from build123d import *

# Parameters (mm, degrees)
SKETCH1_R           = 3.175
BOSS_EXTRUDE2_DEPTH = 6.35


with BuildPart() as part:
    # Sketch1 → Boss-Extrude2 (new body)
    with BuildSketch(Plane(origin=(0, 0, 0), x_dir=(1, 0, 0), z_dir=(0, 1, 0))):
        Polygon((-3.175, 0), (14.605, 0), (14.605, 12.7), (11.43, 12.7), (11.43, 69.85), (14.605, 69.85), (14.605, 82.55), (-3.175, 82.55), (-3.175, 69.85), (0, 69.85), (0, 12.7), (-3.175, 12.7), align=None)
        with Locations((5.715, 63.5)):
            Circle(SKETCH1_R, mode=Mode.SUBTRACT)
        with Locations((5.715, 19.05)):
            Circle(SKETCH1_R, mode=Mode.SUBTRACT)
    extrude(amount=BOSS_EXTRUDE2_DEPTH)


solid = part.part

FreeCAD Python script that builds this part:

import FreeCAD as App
import Part
import Sketcher
from FreeCAD import Vector
Q = App.Units.Quantity


def add_polygon(sketch, points):
    """Adds a closed chain of lines whose ends are joined by coincident constraints."""
    first, n = sketch.GeometryCount, len(points)
    for a, b in zip(points, points[1:] + points[:1]):
        sketch.addGeometry(Part.LineSegment(App.Vector(*a, 0), App.Vector(*b, 0)), False)
    for i in range(n):
        sketch.addConstraint(Sketcher.Constraint("Coincident", first + i, 2, first + (i + 1) % n, 1))

doc = App.newDocument("Part")
body = doc.addObject("PartDesign::Body", "Body")

# Sketch on XZ plane
sketch1 = body.newObject("Sketcher::SketchObject", "Sketch")
sketch1.AttachmentSupport = (doc.getObject("XZ_Plane"), [""])
sketch1.MapMode = "FlatFace"
add_polygon(sketch1, [(-3.2, 0), (14.6, 0), (14.6, -12.7), (11.4, -12.7), (11.4, -69.8), (14.6, -69.8), (14.6, -82.5), (-3.2, -82.5), (-3.2, -69.8), (0, -69.8), (0, -12.7), (-3.2, -12.7)])  # lines 0-11
sketch1.addGeometry(Part.Circle(Vector(5.7, -19.1, 0), Vector(0, 0, 1), 3.2), False)  # 12
sketch1.addGeometry(Part.Circle(Vector(5.7, -63.5, 0), Vector(0, 0, 1), 3.2), False)  # 13
sketch1.addConstraint(Sketcher.Constraint("Horizontal", 0))
sketch1.addConstraint(Sketcher.Constraint("Vertical", 1))
sketch1.addConstraint(Sketcher.Constraint("Horizontal", 2))
sketch1.addConstraint(Sketcher.Constraint("Vertical", 3))
sketch1.addConstraint(Sketcher.Constraint("Horizontal", 4))
sketch1.addConstraint(Sketcher.Constraint("Vertical", 5))
sketch1.addConstraint(Sketcher.Constraint("Horizontal", 6))
sketch1.addConstraint(Sketcher.Constraint("Vertical", 7))
sketch1.addConstraint(Sketcher.Constraint("Horizontal", 8))
sketch1.addConstraint(Sketcher.Constraint("Vertical", 9))
sketch1.addConstraint(Sketcher.Constraint("Horizontal", 10))
sketch1.addConstraint(Sketcher.Constraint("Vertical", 11))
sketch1.addConstraint(Sketcher.Constraint("Equal", 12, 13))
sketch1.addConstraint(Sketcher.Constraint("PointOnObject", 0, 2, -1))
sketch1.addConstraint(Sketcher.Constraint("PointOnObject", 8, 2, -2))
sketch1.addConstraint(Sketcher.Constraint("Horizontal", 4, 2, 7, 2))
sketch1.addConstraint(Sketcher.Constraint("Horizontal", 2, 2, 9, 2))
sketch1.addConstraint(Sketcher.Constraint("Vertical", 12, 3, 13, 3))
sketch1.addConstraint(Sketcher.Constraint("Vertical", 1, 2, 4, 2))
sketch1.addConstraint(Sketcher.Constraint("Vertical", 7, 2, 10, 2))
sketch1.addConstraint(Sketcher.Constraint("Equal", 4, 8))
sketch1.addConstraint(Sketcher.Constraint("Equal", 1, 5))
sketch1.addConstraint(Sketcher.Constraint("Diameter", 12, Q("0.25 in")))
sketch1.addConstraint(Sketcher.Constraint("DistanceX", 0, 1, 0, 2, Q("0.7 in")))
sketch1.addConstraint(Sketcher.Constraint("DistanceY", 1, 2, 1, 1, Q("0.5 in")))
sketch1.addConstraint(Sketcher.Constraint("DistanceY", 13, 3, 1, 2, Q("2 in")))
sketch1.addConstraint(Sketcher.Constraint("DistanceY", 3, 2, 12, 3, Q("2 in")))
sketch1.addConstraint(Sketcher.Constraint("DistanceY", 3, 2, 3, 1, Q("2.25 in")))
sketch1.addConstraint(Sketcher.Constraint("DistanceX", 2, 2, 2, 1, Q("0.125 in")))
sketch1.addConstraint(Sketcher.Constraint("DistanceX", 12, 3, 0, 2, Q("0.35 in")))
pad1 = body.newObject("PartDesign::Pad", "Pad")
pad1.Profile = sketch1
pad1.Length = Q("0.25 in")
pad1.Reversed = True

doc.recompute()
